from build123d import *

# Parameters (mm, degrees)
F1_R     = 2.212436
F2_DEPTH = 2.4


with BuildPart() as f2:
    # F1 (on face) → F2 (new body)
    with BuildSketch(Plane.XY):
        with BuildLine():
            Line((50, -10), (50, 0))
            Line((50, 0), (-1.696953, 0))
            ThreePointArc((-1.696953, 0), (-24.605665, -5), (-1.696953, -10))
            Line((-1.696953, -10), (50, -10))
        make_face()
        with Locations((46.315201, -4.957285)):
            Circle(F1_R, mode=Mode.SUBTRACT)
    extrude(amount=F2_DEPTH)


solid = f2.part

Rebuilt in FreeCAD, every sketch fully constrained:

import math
import FreeCAD as App
import Part
import Sketcher

doc = App.newDocument("Part")
body = doc.addObject("PartDesign::Body", "Body")

# Sketch on XY plane
sketch1 = body.newObject("Sketcher::SketchObject", "Sketch")
sketch1.AttachmentSupport = (doc.getObject("XY_Plane"), [""])
sketch1.MapMode = "FlatFace"
sketch1.addGeometry([
    Part.LineSegment(App.Vector(50, -10, 0), App.Vector(50, 0, 0)),  # 0
    Part.LineSegment(App.Vector(50, 0, 0), App.Vector(-1.7, 0, 0)),  # 1
    Part.ArcOfCircle(Part.Circle(App.Vector(-12.6, -5, 0), App.Vector(0, 0, 1), 12), math.radians(25), math.radians(335)),  # 2
    Part.LineSegment(App.Vector(-1.7, -10, 0), App.Vector(50, -10, 0)),  # 3
    Part.Circle(App.Vector(46.3, -5, 0), App.Vector(0, 0, 1), 2.2),  # 4
], False)
sketch1.addConstraint([
    Sketcher.Constraint("Coincident", 0, 2, 1, 1),
    Sketcher.Constraint("Coincident", 1, 2, 2, 1),
    Sketcher.Constraint("Coincident", 2, 2, 3, 1),
    Sketcher.Constraint("Coincident", 3, 2, 0, 1),
    Sketcher.Constraint("Vertical", 0),
    Sketcher.Constraint("Horizontal", 1),
    Sketcher.Constraint("Horizontal", 3),
    Sketcher.Constraint("PointOnObject", 0, 2, -1),
    Sketcher.Constraint("Vertical", 1, 2, 2, 2),
    Sketcher.Constraint("Radius", 2, 12.0),
    Sketcher.Constraint("DistanceY", 0, 1, 0, 2, 10.0),
    Sketcher.Constraint("DistanceX", -1, 1, 0, 2, 50.0),
    Sketcher.Constraint("Diameter", 4, 4.424872),
    Sketcher.Constraint("DistanceX", -1, 1, 4, 3, 46.315201),
    Sketcher.Constraint("DistanceX", 1, 2, 1, 1, 51.696953),
    Sketcher.Constraint("DistanceY", 4, 3, -1, 1, 4.957285),
])
pad1 = body.newObject("PartDesign::Pad", "Pad")
pad1.Profile = sketch1
pad1.Length = 2.4

doc.recompute()
